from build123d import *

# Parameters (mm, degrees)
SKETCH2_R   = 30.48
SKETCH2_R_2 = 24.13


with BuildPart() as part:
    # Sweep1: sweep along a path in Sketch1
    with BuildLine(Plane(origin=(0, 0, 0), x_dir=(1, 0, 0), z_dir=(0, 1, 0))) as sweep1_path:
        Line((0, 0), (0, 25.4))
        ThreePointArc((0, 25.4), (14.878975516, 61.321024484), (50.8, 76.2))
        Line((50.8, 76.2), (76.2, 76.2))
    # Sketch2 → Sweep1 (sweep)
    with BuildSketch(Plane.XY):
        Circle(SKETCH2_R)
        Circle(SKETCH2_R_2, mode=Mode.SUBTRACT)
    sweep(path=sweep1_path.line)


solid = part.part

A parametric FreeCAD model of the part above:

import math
import FreeCAD as App
import Part
import Sketcher
from FreeCAD import Vector
Q = App.Units.Quantity

doc = App.newDocument("Part")
params = doc.addObject("Spreadsheet::Sheet", "Params")
for row, (alias, value) in enumerate([
    ("sketch1_diameter", "2.4 in"),
    ("sketch1_diameter2", "1.9 in"),
    ("sketch2_radius", "2 in"),
    ("sketch2_width", "1 in"),
], start=1):
    params.set(f"A{row}", alias)
    params.set(f"B{row}", "=" + value)
    params.setAlias(f"B{row}", alias)

body = doc.addObject("PartDesign::Body", "Body")

# Sketch on XY plane
sketch1 = body.newObject("Sketcher::SketchObject", "Sketch")
sketch1.AttachmentSupport = (doc.getObject("XY_Plane"), [""])
sketch1.MapMode = "FlatFace"
sketch1.addGeometry([
    Part.Circle(Vector(0, 0, 0), Vector(0, 0, 1), 30.48),
    Part.Circle(Vector(0, 0, 0), Vector(0, 0, 1), 24.13),
], False)
sketch1.addConstraint([
    Sketcher.Constraint("Coincident", 0, 3, -1, 1),
    Sketcher.Constraint("Coincident", 1, 3, -1, 1),
    Sketcher.Constraint("Diameter", 0, Q("2.4 in")),
    Sketcher.Constraint("Diameter", 1, Q("1.9 in")),
])
sketch1.setExpression("Constraints[2]", "Params.sketch1_diameter")
sketch1.setExpression("Constraints[3]", "Params.sketch1_diameter2")

# Sketch on XZ plane
sketch2 = body.newObject("Sketcher::SketchObject", "Sketch001")
sketch2.AttachmentSupport = (doc.getObject("XZ_Plane"), [""])
sketch2.MapMode = "FlatFace"
sketch2.addGeometry([
    Part.LineSegment(Vector(0, 0, 0), Vector(0, -25.4, 0)),
    Part.ArcOfCircle(Part.Circle(Vector(50.8, -25.4, 0), Vector(0, 0, 1), 50.8), math.radians(-180), math.radians(-90)),
    Part.LineSegment(Vector(50.8, -76.2, 0), Vector(76.2, -76.2, 0)),
], False)
sketch2.addConstraint([
    Sketcher.Constraint("Tangent", 0, 2, 1, 1),
    Sketcher.Constraint("Tangent", 1, 2, 2, 1),
    Sketcher.Constraint("Vertical", 0),
    Sketcher.Constraint("Horizontal", 2),
    Sketcher.Constraint("Coincident", 0, 1, -1, 1),
    Sketcher.Constraint("Equal", 2, 0),
    Sketcher.Constraint("Radius", 1, Q("2 in")),
    Sketcher.Constraint("DistanceX", 2, 1, 2, 2, Q("1 in")),
])
sketch2.setExpression("Constraints[6]", "Params.sketch2_radius")
sketch2.setExpression("Constraints[7]", "Params.sketch2_width")
doc.recompute()

additivepipe = body.newObject("PartDesign::AdditivePipe", "AdditivePipe")
additivepipe.Profile = sketch1
additivepipe.Spine = (sketch2, ["Edge1", "Edge2", "Edge3"])

doc.recompute()
